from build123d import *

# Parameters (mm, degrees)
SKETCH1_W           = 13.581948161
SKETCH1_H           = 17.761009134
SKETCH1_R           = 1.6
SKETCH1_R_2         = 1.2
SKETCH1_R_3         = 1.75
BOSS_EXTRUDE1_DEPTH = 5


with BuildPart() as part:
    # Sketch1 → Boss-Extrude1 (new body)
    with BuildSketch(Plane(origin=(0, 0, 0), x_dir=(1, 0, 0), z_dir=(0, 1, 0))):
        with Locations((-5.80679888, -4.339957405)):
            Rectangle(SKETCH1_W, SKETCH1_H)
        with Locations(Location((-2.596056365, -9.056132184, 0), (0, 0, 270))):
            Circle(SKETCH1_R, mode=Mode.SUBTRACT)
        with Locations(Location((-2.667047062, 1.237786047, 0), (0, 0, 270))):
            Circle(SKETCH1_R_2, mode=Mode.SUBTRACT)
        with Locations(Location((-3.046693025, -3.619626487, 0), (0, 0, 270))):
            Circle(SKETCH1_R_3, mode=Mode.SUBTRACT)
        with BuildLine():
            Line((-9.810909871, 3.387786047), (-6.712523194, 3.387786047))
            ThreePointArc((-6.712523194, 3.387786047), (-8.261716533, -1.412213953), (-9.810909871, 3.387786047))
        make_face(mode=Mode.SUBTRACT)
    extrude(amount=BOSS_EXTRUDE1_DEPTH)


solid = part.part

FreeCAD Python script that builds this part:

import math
import FreeCAD as App
import Part
import Sketcher


def add_polygon(sketch, points):
    """Adds a closed chain of lines whose ends are joined by coincident constraints."""
    first, n = sketch.GeometryCount, len(points)
    for a, b in zip(points, points[1:] + points[:1]):
        sketch.addGeometry(Part.LineSegment(App.Vector(*a, 0), App.Vector(*b, 0)), False)
    for i in range(n):
        sketch.addConstraint(Sketcher.Constraint("Coincident", first + i, 2, first + (i + 1) % n, 1))

doc = App.newDocument("Part")
params = doc.addObject("Spreadsheet::Sheet", "Params")
for row, (alias, value) in enumerate([
    ("sketch1_diameter", "3.2 mm"),
    ("sketch1_diameter2", "3.5 mm"),
    ("sketch1_diameter3", "2.4 mm"),
    ("sketch1_radius", "2.65 mm"),
    ("sketch1_height", "2.15 mm"),
    ("pad1_length", "5 mm"),
], start=1):
    params.set(f"A{row}", alias)
    params.set(f"B{row}", "=" + value)
    params.setAlias(f"B{row}", alias)

body = doc.addObject("PartDesign::Body", "Body")

# Sketch on XZ plane
sketch1 = body.newObject("Sketcher::SketchObject", "Sketch")
sketch1.AttachmentSupport = (doc.getObject("XZ_Plane"), [""])
sketch1.MapMode = "FlatFace"
add_polygon(sketch1, [(-12.6, -4.5), (-12.6, 13.2), (1, 13.2), (1, -4.5)])  # lines 0-3
sketch1.addGeometry(Part.Circle(App.Vector(-2.6, 9.1, 0), App.Vector(0, 0, 1), 1.6), False)  # 4
sketch1.addGeometry(Part.ArcOfCircle(Part.Circle(App.Vector(-8.3, -1.2, 0), App.Vector(0, 0, 1), 2.6), math.radians(-54), math.radians(234)), False)  # 5
sketch1.addGeometry(Part.LineSegment(App.Vector(-9.8, -3.4, 0), App.Vector(-6.7, -3.4, 0)), False)  # 6
sketch1.addGeometry(Part.Circle(App.Vector(-3, 3.6, 0), App.Vector(0, 0, 1), 1.8), False)  # 7
sketch1.addGeometry(Part.Circle(App.Vector(-2.7, -1.2, 0), App.Vector(0, 0, 1), 1.2), False)  # 8
sketch1.addConstraint(Sketcher.Constraint("Coincident", 5, 1, 6, 2))
sketch1.addConstraint(Sketcher.Constraint("Coincident", 6, 1, 5, 2))
sketch1.addConstraint(Sketcher.Constraint("Vertical", 0))
sketch1.addConstraint(Sketcher.Constraint("Horizontal", 1))
sketch1.addConstraint(Sketcher.Constraint("Vertical", 2))
sketch1.addConstraint(Sketcher.Constraint("Horizontal", 3))
sketch1.addConstraint(Sketcher.Constraint("Horizontal", 6))
sketch1.addConstraint(Sketcher.Constraint("Horizontal", 5, 3, 8, 3))
sketch1.addConstraint(Sketcher.Constraint("Diameter", 4, 3.2))
sketch1.addConstraint(Sketcher.Constraint("Diameter", 7, 3.5))
sketch1.addConstraint(Sketcher.Constraint("Diameter", 8, 2.4))
sketch1.addConstraint(Sketcher.Constraint("Radius", 5, 2.65))
sketch1.addConstraint(Sketcher.Constraint("DistanceY", 5, 1, 5, 3, 2.15))
sketch1.addConstraint(Sketcher.Constraint("DistanceX", 1, 1, 1, 2, 13.581948))
sketch1.addConstraint(Sketcher.Constraint("DistanceY", 0, 1, 0, 2, 17.761009))
sketch1.addConstraint(Sketcher.Constraint("DistanceX", 5, 1, 2, 2, 7.696698))
sketch1.addConstraint(Sketcher.Constraint("DistanceY", -1, 1, 0, 2, 13.220462))
sketch1.addConstraint(Sketcher.Constraint("DistanceX", 6, 1, -1, 1, 9.81091))
sketch1.addConstraint(Sketcher.Constraint("DistanceX", 5, 3, 4, 3, 5.66566))
sketch1.addConstraint(Sketcher.Constraint("DistanceY", 5, 3, 4, 3, 10.293918))
sketch1.addConstraint(Sketcher.Constraint("DistanceX", 5, 3, 8, 3, 5.594669))
sketch1.addConstraint(Sketcher.Constraint("DistanceY", 4, 3, 0, 2, 4.16433))
sketch1.addConstraint(Sketcher.Constraint("DistanceX", 0, 2, 7, 3, 9.55108))
sketch1.addConstraint(Sketcher.Constraint("DistanceY", -1, 1, 7, 3, 3.619626))
sketch1.setExpression("Constraints[12]", "Params.sketch1_diameter")
sketch1.setExpression("Constraints[13]", "Params.sketch1_diameter2")
sketch1.setExpression("Constraints[14]", "Params.sketch1_diameter3")
sketch1.setExpression("Constraints[15]", "Params.sketch1_radius")
sketch1.setExpression("Constraints[16]", "Params.sketch1_height")
pad1 = body.newObject("PartDesign::Pad", "Pad")
pad1.Profile = sketch1
pad1.setExpression("Length", "Params.pad1_length")
pad1.Reversed = True

doc.recompute()
